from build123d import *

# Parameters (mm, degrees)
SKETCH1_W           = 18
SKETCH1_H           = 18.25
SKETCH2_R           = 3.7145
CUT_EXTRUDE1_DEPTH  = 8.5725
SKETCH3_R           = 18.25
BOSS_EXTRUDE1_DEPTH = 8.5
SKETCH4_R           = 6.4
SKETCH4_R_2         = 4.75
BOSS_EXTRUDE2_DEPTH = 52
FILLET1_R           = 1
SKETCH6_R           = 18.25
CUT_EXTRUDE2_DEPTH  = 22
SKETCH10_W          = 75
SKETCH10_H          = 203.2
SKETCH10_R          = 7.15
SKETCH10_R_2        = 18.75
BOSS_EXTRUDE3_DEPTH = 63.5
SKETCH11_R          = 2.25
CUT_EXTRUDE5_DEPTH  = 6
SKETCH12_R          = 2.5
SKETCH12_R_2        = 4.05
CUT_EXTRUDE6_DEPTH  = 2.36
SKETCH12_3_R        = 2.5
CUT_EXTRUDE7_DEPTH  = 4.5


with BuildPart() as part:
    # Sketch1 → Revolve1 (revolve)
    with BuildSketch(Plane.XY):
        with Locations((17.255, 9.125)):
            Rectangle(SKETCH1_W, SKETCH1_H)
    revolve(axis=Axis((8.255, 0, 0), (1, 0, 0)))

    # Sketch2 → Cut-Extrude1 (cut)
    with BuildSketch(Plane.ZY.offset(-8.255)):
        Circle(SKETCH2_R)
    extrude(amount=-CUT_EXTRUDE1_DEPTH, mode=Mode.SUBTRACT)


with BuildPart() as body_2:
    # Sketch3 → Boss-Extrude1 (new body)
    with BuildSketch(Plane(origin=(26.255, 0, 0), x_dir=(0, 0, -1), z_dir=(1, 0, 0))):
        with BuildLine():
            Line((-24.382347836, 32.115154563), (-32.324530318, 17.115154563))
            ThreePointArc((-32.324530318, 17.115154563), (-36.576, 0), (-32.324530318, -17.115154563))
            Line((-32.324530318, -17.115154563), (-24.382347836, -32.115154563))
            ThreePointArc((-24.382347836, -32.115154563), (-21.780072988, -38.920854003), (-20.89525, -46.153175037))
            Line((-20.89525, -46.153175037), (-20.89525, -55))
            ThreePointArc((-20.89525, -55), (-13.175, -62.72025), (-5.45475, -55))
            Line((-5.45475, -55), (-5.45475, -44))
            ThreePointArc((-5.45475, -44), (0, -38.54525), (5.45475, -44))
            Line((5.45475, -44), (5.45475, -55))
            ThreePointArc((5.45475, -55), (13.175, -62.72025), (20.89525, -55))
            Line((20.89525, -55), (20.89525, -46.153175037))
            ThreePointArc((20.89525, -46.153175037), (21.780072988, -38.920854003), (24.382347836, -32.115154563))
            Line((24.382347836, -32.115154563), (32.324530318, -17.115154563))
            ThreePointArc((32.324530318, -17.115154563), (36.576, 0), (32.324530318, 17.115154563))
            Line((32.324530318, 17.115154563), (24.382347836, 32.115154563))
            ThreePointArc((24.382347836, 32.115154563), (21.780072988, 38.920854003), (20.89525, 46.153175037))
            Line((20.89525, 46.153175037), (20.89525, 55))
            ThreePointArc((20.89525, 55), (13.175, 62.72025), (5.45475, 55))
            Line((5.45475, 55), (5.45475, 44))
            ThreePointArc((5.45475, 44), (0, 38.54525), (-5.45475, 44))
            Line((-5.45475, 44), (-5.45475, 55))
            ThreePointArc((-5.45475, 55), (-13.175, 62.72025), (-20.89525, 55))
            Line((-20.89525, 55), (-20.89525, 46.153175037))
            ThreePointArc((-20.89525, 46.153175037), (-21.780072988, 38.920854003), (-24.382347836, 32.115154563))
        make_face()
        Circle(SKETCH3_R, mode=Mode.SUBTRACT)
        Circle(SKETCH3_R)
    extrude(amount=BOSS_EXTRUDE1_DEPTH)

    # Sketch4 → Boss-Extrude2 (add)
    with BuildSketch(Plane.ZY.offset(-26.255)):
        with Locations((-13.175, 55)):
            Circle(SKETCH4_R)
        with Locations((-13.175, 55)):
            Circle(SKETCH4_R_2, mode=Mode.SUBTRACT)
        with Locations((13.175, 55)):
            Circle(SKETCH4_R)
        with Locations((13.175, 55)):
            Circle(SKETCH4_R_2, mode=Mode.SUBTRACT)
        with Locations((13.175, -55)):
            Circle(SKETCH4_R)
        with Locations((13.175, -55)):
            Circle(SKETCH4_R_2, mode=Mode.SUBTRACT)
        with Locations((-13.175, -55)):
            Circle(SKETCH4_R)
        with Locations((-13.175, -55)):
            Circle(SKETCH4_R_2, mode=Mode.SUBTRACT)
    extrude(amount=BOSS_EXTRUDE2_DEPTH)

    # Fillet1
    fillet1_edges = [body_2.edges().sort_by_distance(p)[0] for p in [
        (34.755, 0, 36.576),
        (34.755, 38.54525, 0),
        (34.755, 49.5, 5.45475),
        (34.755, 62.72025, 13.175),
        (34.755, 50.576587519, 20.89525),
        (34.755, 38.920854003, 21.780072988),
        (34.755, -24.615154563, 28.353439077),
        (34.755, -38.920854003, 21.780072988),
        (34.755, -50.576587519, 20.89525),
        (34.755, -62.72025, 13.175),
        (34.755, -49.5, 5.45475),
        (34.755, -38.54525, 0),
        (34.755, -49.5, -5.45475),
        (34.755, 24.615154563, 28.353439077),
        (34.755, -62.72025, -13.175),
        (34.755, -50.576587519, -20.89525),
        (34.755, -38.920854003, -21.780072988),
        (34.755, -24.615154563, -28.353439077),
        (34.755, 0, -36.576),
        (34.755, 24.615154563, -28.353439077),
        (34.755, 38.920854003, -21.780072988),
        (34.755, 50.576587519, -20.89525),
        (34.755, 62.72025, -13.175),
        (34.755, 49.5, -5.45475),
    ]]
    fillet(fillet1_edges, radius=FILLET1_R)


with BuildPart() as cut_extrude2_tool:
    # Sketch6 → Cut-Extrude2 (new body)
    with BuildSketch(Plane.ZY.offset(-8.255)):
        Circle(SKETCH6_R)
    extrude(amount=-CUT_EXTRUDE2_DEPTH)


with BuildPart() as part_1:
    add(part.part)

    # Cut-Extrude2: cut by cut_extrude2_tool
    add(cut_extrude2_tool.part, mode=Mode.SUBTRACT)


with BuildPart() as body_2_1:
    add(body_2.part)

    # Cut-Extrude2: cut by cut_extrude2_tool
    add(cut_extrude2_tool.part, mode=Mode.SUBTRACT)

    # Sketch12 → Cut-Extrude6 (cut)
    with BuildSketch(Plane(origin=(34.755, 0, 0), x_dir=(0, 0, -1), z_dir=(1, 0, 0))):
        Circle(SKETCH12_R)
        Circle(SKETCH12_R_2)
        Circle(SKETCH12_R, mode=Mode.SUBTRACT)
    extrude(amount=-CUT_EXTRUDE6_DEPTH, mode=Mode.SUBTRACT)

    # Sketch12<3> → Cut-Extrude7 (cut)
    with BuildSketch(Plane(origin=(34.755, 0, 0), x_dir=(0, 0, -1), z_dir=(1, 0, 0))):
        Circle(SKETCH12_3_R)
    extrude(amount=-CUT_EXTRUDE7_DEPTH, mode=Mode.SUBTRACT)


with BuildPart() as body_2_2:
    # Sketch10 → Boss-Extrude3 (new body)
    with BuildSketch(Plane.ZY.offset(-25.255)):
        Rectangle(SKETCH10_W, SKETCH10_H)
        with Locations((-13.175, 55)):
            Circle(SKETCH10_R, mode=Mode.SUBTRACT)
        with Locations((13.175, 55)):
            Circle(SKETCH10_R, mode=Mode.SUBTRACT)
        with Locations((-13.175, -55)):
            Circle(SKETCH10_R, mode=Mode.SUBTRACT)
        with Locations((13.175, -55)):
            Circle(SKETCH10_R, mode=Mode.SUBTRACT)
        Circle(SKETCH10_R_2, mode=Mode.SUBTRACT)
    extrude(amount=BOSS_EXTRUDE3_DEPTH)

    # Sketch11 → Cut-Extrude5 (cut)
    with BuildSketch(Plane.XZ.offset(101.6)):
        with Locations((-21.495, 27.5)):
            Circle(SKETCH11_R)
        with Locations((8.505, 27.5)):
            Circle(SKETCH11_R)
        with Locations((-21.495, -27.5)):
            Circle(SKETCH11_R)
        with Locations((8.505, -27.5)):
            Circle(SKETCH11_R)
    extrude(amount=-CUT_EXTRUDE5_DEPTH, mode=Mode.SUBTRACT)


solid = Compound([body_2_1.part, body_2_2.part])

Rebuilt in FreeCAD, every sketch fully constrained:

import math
import FreeCAD as App
import Part
import Sketcher

V = App.Vector


def edges_at(feature, points):
    """Names of the edges that pass closest to the given points."""
    edges = feature.Shape.Edges
    near = lambda p: min(range(len(edges)), key=lambda i: edges[i].distToShape(Part.Vertex(*p))[0])
    return sorted({f"Edge{near(p) + 1}" for p in points})


def add_polygon(sketch, points):
    """Adds a closed chain of lines whose ends are joined by coincident constraints."""
    first, n = sketch.GeometryCount, len(points)
    for a, b in zip(points, points[1:] + points[:1]):
        sketch.addGeometry(Part.LineSegment(App.Vector(*a, 0), App.Vector(*b, 0)), False)
    for i in range(n):
        sketch.addConstraint(Sketcher.Constraint("Coincident", first + i, 2, first + (i + 1) % n, 1))

doc = App.newDocument("Part")
body = doc.addObject("PartDesign::Body", "Body")

# Sketch on XY plane
sketch1 = body.newObject("Sketcher::SketchObject", "Sketch")
sketch1.AttachmentSupport = (doc.getObject("XY_Plane"), [""])
sketch1.MapMode = "FlatFace"
add_polygon(sketch1, [(8, 18), (8, 0), (26, 0), (26, 18)])  # lines 0-3
sketch1.addConstraint(Sketcher.Constraint("Vertical", 0))
sketch1.addConstraint(Sketcher.Constraint("Horizontal", 1))
sketch1.addConstraint(Sketcher.Constraint("Vertical", 2))
sketch1.addConstraint(Sketcher.Constraint("Horizontal", 3))
sketch1.addConstraint(Sketcher.Constraint("PointOnObject", 0, 2, -1))
sketch1.addConstraint(Sketcher.Constraint("DistanceX", 1, 1, 1, 2, 18.0))
sketch1.addConstraint(Sketcher.Constraint("DistanceY", 0, 2, 0, 1, 18.25))
sketch1.addConstraint(Sketcher.Constraint("DistanceX", -1, 1, 0, 2, 8.255))
revolution = body.newObject("PartDesign::Revolution", "Revolution")
revolution.Profile = sketch1
revolution.ReferenceAxis = (sketch1, ["H_Axis"])
revolution.Angle = 360

# Sketch on YZ plane
sketch2 = body.newObject("Sketcher::SketchObject", "Sketch001")
sketch2.AttachmentSupport = (doc.getObject("YZ_Plane"), [""])
sketch2.MapMode = "FlatFace"
sketch2.AttachmentOffset = App.Placement(V(0, 0, 8.255), App.Rotation())
sketch2.addGeometry(Part.Circle(V(0, 0, 0), V(0, 0, 1), 3.7), False)
sketch2.addConstraint(Sketcher.Constraint("Coincident", 0, 3, -1, 1))
sketch2.addConstraint(Sketcher.Constraint("Diameter", 0, 7.429))
pocket1 = body.newObject("PartDesign::Pocket", "Pocket")
pocket1.Profile = sketch2
pocket1.Length = 8.5725
pocket1.Reversed = True
body2 = doc.addObject("PartDesign::Body", "Body001")

# Sketch on YZ plane
sketch3 = body2.newObject("Sketcher::SketchObject", "Sketch002")
sketch3.AttachmentSupport = (doc.getObject("YZ_Plane001"), [""])
sketch3.MapMode = "FlatFace"
sketch3.AttachmentOffset = App.Placement(V(0, 0, 26.255), App.Rotation())
sketch3.addGeometry(Part.LineSegment(V(32, 24, 0), V(17, 32, 0)), False)
sketch3.addGeometry(Part.ArcOfCircle(Part.Circle(V(0, 0, 0), V(0, 0, 1), 37), math.radians(62), math.radians(118)), False)
sketch3.addGeometry(Part.LineSegment(V(-17, 32, 0), V(-32, 24, 0)), False)
sketch3.addGeometry(Part.ArcOfCircle(Part.Circle(V(-46, 51, 0), V(0, 0, 1), 30), math.radians(-90), math.radians(-62)), False)
sketch3.addGeometry(Part.LineSegment(V(-46, 21, 0), V(-55, 21, 0)), False)
sketch3.addGeometry(Part.ArcOfCircle(Part.Circle(V(-55, 13, 0), V(0, 0, 1), 8), math.radians(90), math.radians(270)), False)
sketch3.addGeometry(Part.LineSegment(V(-55, 5, 0), V(-44, 5, 0)), False)
sketch3.addGeometry(Part.ArcOfCircle(Part.Circle(V(-44, 0, 0), V(0, 0, 1), 5), math.radians(-90), math.radians(90)), False)
sketch3.addGeometry(Part.LineSegment(V(-44, -5, 0), V(-55, -5, 0)), False)
sketch3.addGeometry(Part.ArcOfCircle(Part.Circle(V(-55, -13, 0), V(0, 0, 1), 8), math.radians(90), math.radians(270)), False)
sketch3.addGeometry(Part.LineSegment(V(-55, -21, 0), V(-46, -21, 0)), False)
sketch3.addGeometry(Part.ArcOfCircle(Part.Circle(V(-46, -51, 0), V(0, 0, 1), 30), math.radians(62), math.radians(90)), False)
sketch3.addGeometry(Part.LineSegment(V(-32, -24, 0), V(-17, -32, 0)), False)
sketch3.addGeometry(Part.ArcOfCircle(Part.Circle(V(0, 0, 0), V(0, 0, 1), 37), math.radians(-118), math.radians(-62)), False)
sketch3.addGeometry(Part.LineSegment(V(17, -32, 0), V(32, -24, 0)), False)
sketch3.addGeometry(Part.ArcOfCircle(Part.Circle(V(46, -51, 0), V(0, 0, 1), 30), math.radians(90), math.radians(118)), False)
sketch3.addGeometry(Part.LineSegment(V(46, -21, 0), V(55, -21, 0)), False)
sketch3.addGeometry(Part.ArcOfCircle(Part.Circle(V(55, -13, 0), V(0, 0, 1), 8), math.radians(-90), math.radians(90)), False)
sketch3.addGeometry(Part.LineSegment(V(55, -5, 0), V(44, -5, 0)), False)
sketch3.addGeometry(Part.ArcOfCircle(Part.Circle(V(44, 0, 0), V(0, 0, 1), 5), math.radians(90), math.radians(270)), False)
sketch3.addGeometry(Part.LineSegment(V(44, 5, 0), V(55, 5, 0)), False)
sketch3.addGeometry(Part.ArcOfCircle(Part.Circle(V(55, 13, 0), V(0, 0, 1), 8), math.radians(-90), math.radians(90)), False)
sketch3.addGeometry(Part.LineSegment(V(55, 21, 0), V(46, 21, 0)), False)
sketch3.addGeometry(Part.ArcOfCircle(Part.Circle(V(46, 51, 0), V(0, 0, 1), 30), math.radians(-118), math.radians(-90)), False)
sketch3.addConstraint(Sketcher.Constraint("Tangent", 0, 2, 1, 1))
sketch3.addConstraint(Sketcher.Constraint("Tangent", 1, 2, 2, 1))
sketch3.addConstraint(Sketcher.Constraint("Tangent", 2, 2, 3, 2))
sketch3.addConstraint(Sketcher.Constraint("Tangent", 3, 1, 4, 1))
sketch3.addConstraint(Sketcher.Constraint("Tangent", 4, 2, 5, 1))
sketch3.addConstraint(Sketcher.Constraint("Tangent", 5, 2, 6, 1))
sketch3.addConstraint(Sketcher.Constraint("Tangent", 6, 2, 7, 2))
sketch3.addConstraint(Sketcher.Constraint("Tangent", 7, 1, 8, 1))
sketch3.addConstraint(Sketcher.Constraint("Tangent", 8, 2, 9, 1))
sketch3.addConstraint(Sketcher.Constraint("Tangent", 9, 2, 10, 1))
sketch3.addConstraint(Sketcher.Constraint("Tangent", 10, 2, 11, 2))
sketch3.addConstraint(Sketcher.Constraint("Tangent", 11, 1, 12, 1))
sketch3.addConstraint(Sketcher.Constraint("Tangent", 12, 2, 13, 1))
sketch3.addConstraint(Sketcher.Constraint("Tangent", 13, 2, 14, 1))
sketch3.addConstraint(Sketcher.Constraint("Tangent", 14, 2, 15, 2))
sketch3.addConstraint(Sketcher.Constraint("Tangent", 15, 1, 16, 1))
sketch3.addConstraint(Sketcher.Constraint("Tangent", 16, 2, 17, 1))
sketch3.addConstraint(Sketcher.Constraint("Tangent", 17, 2, 18, 1))
sketch3.addConstraint(Sketcher.Constraint("Tangent", 18, 2, 19, 2))
sketch3.addConstraint(Sketcher.Constraint("Tangent", 19, 1, 20, 1))
sketch3.addConstraint(Sketcher.Constraint("Tangent", 20, 2, 21, 1))
sketch3.addConstraint(Sketcher.Constraint("Tangent", 21, 2, 22, 1))
sketch3.addConstraint(Sketcher.Constraint("Tangent", 22, 2, 23, 2))
sketch3.addConstraint(Sketcher.Constraint("Tangent", 23, 1, 0, 1))
sketch3.addConstraint(Sketcher.Constraint("Horizontal", 4))
sketch3.addConstraint(Sketcher.Constraint("Horizontal", 6))
sketch3.addConstraint(Sketcher.Constraint("Horizontal", 8))
sketch3.addConstraint(Sketcher.Constraint("Horizontal", 10))
sketch3.addConstraint(Sketcher.Constraint("Horizontal", 16))
sketch3.addConstraint(Sketcher.Constraint("Horizontal", 18))
sketch3.addConstraint(Sketcher.Constraint("Horizontal", 20))
sketch3.addConstraint(Sketcher.Constraint("Horizontal", 22))
sketch3.addConstraint(Sketcher.Constraint("Coincident", 1, 3, -1, 1))
sketch3.addConstraint(Sketcher.Constraint("Coincident", 13, 3, -1, 1))
sketch3.addConstraint(Sketcher.Constraint("Equal", 5, 9))
sketch3.addConstraint(Sketcher.Constraint("Equal", 3, 11))
sketch3.addConstraint(Sketcher.Constraint("Equal", 1, 13))
sketch3.addConstraint(Sketcher.Constraint("Equal", 11, 15))
sketch3.addConstraint(Sketcher.Constraint("Equal", 9, 17))
sketch3.addConstraint(Sketcher.Constraint("Equal", 7, 19))
sketch3.addConstraint(Sketcher.Constraint("Equal", 17, 21))
sketch3.addConstraint(Sketcher.Constraint("Equal", 15, 23))
sketch3.addConstraint(Sketcher.Constraint("Symmetric", 3, 3, 15, 3, -1, 1))
sketch3.addConstraint(Sketcher.Constraint("Symmetric", 11, 3, 15, 3, -2))
sketch3.addConstraint(Sketcher.Constraint("Parallel", 0, 12))
sketch3.addConstraint(Sketcher.Constraint("Vertical", 5, 3, 9, 3))
sketch3.addConstraint(Sketcher.Constraint("Vertical", 17, 3, 21, 3))
sketch3.addConstraint(Sketcher.Constraint("Equal", 10, 16))
sketch3.addConstraint(Sketcher.Constraint("Equal", 8, 18))
sketch3.addConstraint(Sketcher.Constraint("Radius", 3, 30.0))
sketch3.addConstraint(Sketcher.Constraint("DistanceX", 6, 1, 6, 2, 11.0))
sketch3.addConstraint(Sketcher.Constraint("DistanceX", 5, 3, -1, 1, 55.0))
sketch3.addConstraint(Sketcher.Constraint("Radius", 1, 36.576))
sketch3.addConstraint(Sketcher.Constraint("DistanceX", 2, 2, 1, 2, 15.0))
sketch3.addConstraint(Sketcher.Constraint("Radius", 5, 7.72025))
sketch3.addConstraint(Sketcher.Constraint("Radius", 7, 5.45475))
pad1 = body2.newObject("PartDesign::Pad", "Pad")
pad1.Profile = sketch3
pad1.Length = 8.5

# Sketch on YZ plane
sketch4 = body2.newObject("Sketcher::SketchObject", "Sketch003")
sketch4.AttachmentSupport = (doc.getObject("YZ_Plane001"), [""])
sketch4.MapMode = "FlatFace"
sketch4.AttachmentOffset = App.Placement(V(0, 0, 26.255), App.Rotation())
sketch4.addGeometry(Part.Circle(V(55, -13.2, 0), V(0, 0, 1), 6.4), False)
sketch4.addGeometry(Part.Circle(V(55, -13.2, 0), V(0, 0, 1), 4.8), False)
sketch4.addGeometry(Part.Circle(V(55, 13.2, 0), V(0, 0, 1), 6.4), False)
sketch4.addGeometry(Part.Circle(V(55, 13.2, 0), V(0, 0, 1), 4.8), False)
sketch4.addGeometry(Part.Circle(V(-55, 13.2, 0), V(0, 0, 1), 6.4), False)
sketch4.addGeometry(Part.Circle(V(-55, 13.2, 0), V(0, 0, 1), 4.8), False)
sketch4.addGeometry(Part.Circle(V(-55, -13.2, 0), V(0, 0, 1), 6.4), False)
sketch4.addGeometry(Part.Circle(V(-55, -13.2, 0), V(0, 0, 1), 4.8), False)
sketch4.addConstraint(Sketcher.Constraint("Coincident", 1, 3, 0, 3))
sketch4.addConstraint(Sketcher.Constraint("Coincident", 3, 3, 2, 3))
sketch4.addConstraint(Sketcher.Constraint("Coincident", 5, 3, 4, 3))
sketch4.addConstraint(Sketcher.Constraint("Coincident", 7, 3, 6, 3))
sketch4.addConstraint(Sketcher.Constraint("Equal", 0, 2))
sketch4.addConstraint(Sketcher.Constraint("Equal", 1, 3))
sketch4.addConstraint(Sketcher.Constraint("Equal", 2, 4))
sketch4.addConstraint(Sketcher.Constraint("Equal", 3, 5))
sketch4.addConstraint(Sketcher.Constraint("Equal", 4, 6))
sketch4.addConstraint(Sketcher.Constraint("Equal", 5, 7))
sketch4.addConstraint(Sketcher.Constraint("Symmetric", 0, 3, 4, 3, -1, 1))
sketch4.addConstraint(Sketcher.Constraint("Symmetric", 2, 3, 6, 3, -1, 1))
sketch4.addConstraint(Sketcher.Constraint("Symmetric", 2, 3, 4, 3, -2))
sketch4.addConstraint(Sketcher.Constraint("Diameter", 0, 12.8))
sketch4.addConstraint(Sketcher.Constraint("Diameter", 1, 9.5))
sketch4.addConstraint(Sketcher.Constraint("DistanceX", -1, 1, 0, 3, 55.0))
sketch4.addConstraint(Sketcher.Constraint("DistanceY", 0, 3, 2, 3, 26.35))
pad2 = body2.newObject("PartDesign::Pad", "Pad001")
pad2.Profile = sketch4
pad2.Length = 52
pad2.Reversed = True
doc.recompute()

fillet = body2.newObject("PartDesign::Fillet", "Fillet")
fillet.Base = (pad2, edges_at(pad2, [
    (34.755, 0, 36.576),
    (34.755, 38.545, 0),
    (34.755, 49.5, 5.455),
    (34.755, 62.72, 13.175),
    (34.755, 50.577, 20.895),
    (34.755, 38.921, 21.78),
    (34.755, -24.615, 28.353),
    (34.755, -38.921, 21.78),
    (34.755, -50.577, 20.895),
    (34.755, -62.72, 13.175),
    (34.755, -49.5, 5.455),
    (34.755, -38.545, 0),
    (34.755, -49.5, -5.455),
    (34.755, 24.615, 28.353),
    (34.755, -62.72, -13.175),
    (34.755, -50.577, -20.895),
    (34.755, -38.921, -21.78),
    (34.755, -24.615, -28.353),
    (34.755, 0, -36.576),
    (34.755, 24.615, -28.353),
    (34.755, 38.921, -21.78),
    (34.755, 50.577, -20.895),
    (34.755, 62.72, -13.175),
    (34.755, 49.5, -5.455),
]))
fillet.Radius = 1
body3 = doc.addObject("PartDesign::Body", "Body002")

# Sketch on YZ plane
sketch5 = body3.newObject("Sketcher::SketchObject", "Sketch004")
sketch5.AttachmentSupport = (doc.getObject("YZ_Plane002"), [""])
sketch5.MapMode = "FlatFace"
sketch5.AttachmentOffset = App.Placement(V(0, 0, 8.255), App.Rotation())
sketch5.addGeometry(Part.Circle(V(0, 0, 0), V(0, 0, 1), 18), False)
sketch5.addConstraint(Sketcher.Constraint("Coincident", 0, 3, -1, 1))
sketch5.addConstraint(Sketcher.Constraint("Diameter", 0, 36.5))
pad3 = body3.newObject("PartDesign::Pad", "Pad002")
pad3.Profile = sketch5
pad3.Length = 22
doc.recompute()

body4 = doc.addObject("PartDesign::Body", "Body003")
body4.BaseFeature = body3
boolean = body.newObject("PartDesign::Boolean", "Boolean")
boolean.Type = "Cut"
boolean.addObjects([body4])
doc.recompute()

boolean2 = body2.newObject("PartDesign::Boolean", "Boolean001")
boolean2.Type = "Cut"
boolean2.addObjects([body3])

# Sketch on YZ plane
sketch6 = body2.newObject("Sketcher::SketchObject", "Sketch005")
sketch6.AttachmentSupport = (doc.getObject("YZ_Plane001"), [""])
sketch6.MapMode = "FlatFace"
sketch6.AttachmentOffset = App.Placement(V(0, 0, 34.755), App.Rotation())
sketch6.addGeometry(Part.Circle(V(0, 0, 0), V(0, 0, 1), 4), False)
sketch6.addGeometry(Part.Circle(V(0, 0, 0), V(0, 0, 1), 2.5), False)
sketch6.addConstraint(Sketcher.Constraint("Coincident", 0, 3, -1, 1))
sketch6.addConstraint(Sketcher.Constraint("Coincident", 1, 3, -1, 1))
sketch6.addConstraint(Sketcher.Constraint("Diameter", 1, 5.0))
sketch6.addConstraint(Sketcher.Constraint("Diameter", 0, 8.1))
pocket2 = body2.newObject("PartDesign::Pocket", "Pocket001")
pocket2.Profile = sketch6
pocket2.Length = 2.36

# Sketch on YZ plane
sketch7 = body2.newObject("Sketcher::SketchObject", "Sketch006")
sketch7.AttachmentSupport = (doc.getObject("YZ_Plane001"), [""])
sketch7.MapMode = "FlatFace"
sketch7.AttachmentOffset = App.Placement(V(0, 0, 34.755), App.Rotation())
sketch7.addGeometry(Part.Circle(V(0, 0, 0), V(0, 0, 1), 2.5), False)
sketch7.addConstraint(Sketcher.Constraint("Coincident", 0, 3, -1, 1))
sketch7.addConstraint(Sketcher.Constraint("Diameter", 0, 5.0))
pocket3 = body2.newObject("PartDesign::Pocket", "Pocket002")
pocket3.Profile = sketch7
pocket3.Length = 4.5
body5 = doc.addObject("PartDesign::Body", "Body004")

# Sketch on YZ plane
sketch8 = body5.newObject("Sketcher::SketchObject", "Sketch007")
sketch8.AttachmentSupport = (doc.getObject("YZ_Plane004"), [""])
sketch8.MapMode = "FlatFace"
sketch8.AttachmentOffset = App.Placement(V(0, 0, 25.255), App.Rotation())
add_polygon(sketch8, [(102, -38), (-102, -38), (-102, 38), (102, 38)])  # lines 0-3
sketch8.addGeometry(Part.Circle(V(-55, -13, 0), V(0, 0, 1), 7), False)  # 4
sketch8.addGeometry(Part.Circle(V(-55, 13, 0), V(0, 0, 1), 7), False)  # 5
sketch8.addGeometry(Part.Circle(V(0, 0, 0), V(0, 0, 1), 19), False)  # 6
sketch8.addGeometry(Part.Circle(V(55, -13, 0), V(0, 0, 1), 7), False)  # 7
sketch8.addGeometry(Part.Circle(V(55, 13, 0), V(0, 0, 1), 7), False)  # 8
sketch8.addConstraint(Sketcher.Constraint("Horizontal", 0))
sketch8.addConstraint(Sketcher.Constraint("Vertical", 1))
sketch8.addConstraint(Sketcher.Constraint("Horizontal", 2))
sketch8.addConstraint(Sketcher.Constraint("Vertical", 3))
sketch8.addConstraint(Sketcher.Constraint("Coincident", 6, 3, -1, 1))
sketch8.addConstraint(Sketcher.Constraint("Equal", 4, 5))
sketch8.addConstraint(Sketcher.Constraint("Equal", 5, 7))
sketch8.addConstraint(Sketcher.Constraint("Equal", 7, 8))
sketch8.addConstraint(Sketcher.Constraint("Symmetric", 5, 3, 7, 3, -1, 1))
sketch8.addConstraint(Sketcher.Constraint("Symmetric", 4, 3, 8, 3, -1, 1))
sketch8.addConstraint(Sketcher.Constraint("Symmetric", 0, 2, 2, 2, -1, 1))
sketch8.addConstraint(Sketcher.Constraint("Symmetric", 4, 3, 7, 3, -2))
sketch8.addConstraint(Sketcher.Constraint("Diameter", 4, 14.3))
sketch8.addConstraint(Sketcher.Constraint("Diameter", 6, 37.5))
sketch8.addConstraint(Sketcher.Constraint("DistanceY", 1, 1, 1, 2, 75.0))
sketch8.addConstraint(Sketcher.Constraint("DistanceX", 0, 2, 0, 1, 203.2))
sketch8.addConstraint(Sketcher.Constraint("DistanceX", 4, 3, -1, 1, 55.0))
sketch8.addConstraint(Sketcher.Constraint("DistanceY", 4, 3, 5, 3, 26.35))
pad4 = body5.newObject("PartDesign::Pad", "Pad003")
pad4.Profile = sketch8
pad4.Length = 63.5
pad4.Reversed = True

# Sketch on XZ plane
sketch9 = body5.newObject("Sketcher::SketchObject", "Sketch008")
sketch9.AttachmentSupport = (doc.getObject("XZ_Plane004"), [""])
sketch9.MapMode = "FlatFace"
sketch9.AttachmentOffset = App.Placement(V(0, 0, 101.6), App.Rotation())
sketch9.addGeometry(Part.Circle(V(-21.5, 27.5, 0), V(0, 0, 1), 2.2), False)
sketch9.addGeometry(Part.Circle(V(8.5, 27.5, 0), V(0, 0, 1), 2.2), False)
sketch9.addGeometry(Part.Circle(V(-21.5, -27.5, 0), V(0, 0, 1), 2.2), False)
sketch9.addGeometry(Part.Circle(V(8.5, -27.5, 0), V(0, 0, 1), 2.2), False)
sketch9.addConstraint(Sketcher.Constraint("Equal", 0, 1))
sketch9.addConstraint(Sketcher.Constraint("Equal", 1, 2))
sketch9.addConstraint(Sketcher.Constraint("Equal", 2, 3))
sketch9.addConstraint(Sketcher.Constraint("Symmetric", 0, 3, 2, 3, -1))
sketch9.addConstraint(Sketcher.Constraint("Symmetric", 1, 3, 3, 3, -1))
sketch9.addConstraint(Sketcher.Constraint("Horizontal", 0, 3, 1, 3))
sketch9.addConstraint(Sketcher.Constraint("Diameter", 0, 4.5))
sketch9.addConstraint(Sketcher.Constraint("DistanceX", 0, 3, 1, 3, 30.0))
sketch9.addConstraint(Sketcher.Constraint("DistanceY", 2, 3, 0, 3, 55.0))
sketch9.addConstraint(Sketcher.Constraint("DistanceX", 0, 3, -1, 1, 21.495))
pocket4 = body5.newObject("PartDesign::Pocket", "Pocket003")
pocket4.Profile = sketch9
pocket4.Length = 6

doc.recompute()
